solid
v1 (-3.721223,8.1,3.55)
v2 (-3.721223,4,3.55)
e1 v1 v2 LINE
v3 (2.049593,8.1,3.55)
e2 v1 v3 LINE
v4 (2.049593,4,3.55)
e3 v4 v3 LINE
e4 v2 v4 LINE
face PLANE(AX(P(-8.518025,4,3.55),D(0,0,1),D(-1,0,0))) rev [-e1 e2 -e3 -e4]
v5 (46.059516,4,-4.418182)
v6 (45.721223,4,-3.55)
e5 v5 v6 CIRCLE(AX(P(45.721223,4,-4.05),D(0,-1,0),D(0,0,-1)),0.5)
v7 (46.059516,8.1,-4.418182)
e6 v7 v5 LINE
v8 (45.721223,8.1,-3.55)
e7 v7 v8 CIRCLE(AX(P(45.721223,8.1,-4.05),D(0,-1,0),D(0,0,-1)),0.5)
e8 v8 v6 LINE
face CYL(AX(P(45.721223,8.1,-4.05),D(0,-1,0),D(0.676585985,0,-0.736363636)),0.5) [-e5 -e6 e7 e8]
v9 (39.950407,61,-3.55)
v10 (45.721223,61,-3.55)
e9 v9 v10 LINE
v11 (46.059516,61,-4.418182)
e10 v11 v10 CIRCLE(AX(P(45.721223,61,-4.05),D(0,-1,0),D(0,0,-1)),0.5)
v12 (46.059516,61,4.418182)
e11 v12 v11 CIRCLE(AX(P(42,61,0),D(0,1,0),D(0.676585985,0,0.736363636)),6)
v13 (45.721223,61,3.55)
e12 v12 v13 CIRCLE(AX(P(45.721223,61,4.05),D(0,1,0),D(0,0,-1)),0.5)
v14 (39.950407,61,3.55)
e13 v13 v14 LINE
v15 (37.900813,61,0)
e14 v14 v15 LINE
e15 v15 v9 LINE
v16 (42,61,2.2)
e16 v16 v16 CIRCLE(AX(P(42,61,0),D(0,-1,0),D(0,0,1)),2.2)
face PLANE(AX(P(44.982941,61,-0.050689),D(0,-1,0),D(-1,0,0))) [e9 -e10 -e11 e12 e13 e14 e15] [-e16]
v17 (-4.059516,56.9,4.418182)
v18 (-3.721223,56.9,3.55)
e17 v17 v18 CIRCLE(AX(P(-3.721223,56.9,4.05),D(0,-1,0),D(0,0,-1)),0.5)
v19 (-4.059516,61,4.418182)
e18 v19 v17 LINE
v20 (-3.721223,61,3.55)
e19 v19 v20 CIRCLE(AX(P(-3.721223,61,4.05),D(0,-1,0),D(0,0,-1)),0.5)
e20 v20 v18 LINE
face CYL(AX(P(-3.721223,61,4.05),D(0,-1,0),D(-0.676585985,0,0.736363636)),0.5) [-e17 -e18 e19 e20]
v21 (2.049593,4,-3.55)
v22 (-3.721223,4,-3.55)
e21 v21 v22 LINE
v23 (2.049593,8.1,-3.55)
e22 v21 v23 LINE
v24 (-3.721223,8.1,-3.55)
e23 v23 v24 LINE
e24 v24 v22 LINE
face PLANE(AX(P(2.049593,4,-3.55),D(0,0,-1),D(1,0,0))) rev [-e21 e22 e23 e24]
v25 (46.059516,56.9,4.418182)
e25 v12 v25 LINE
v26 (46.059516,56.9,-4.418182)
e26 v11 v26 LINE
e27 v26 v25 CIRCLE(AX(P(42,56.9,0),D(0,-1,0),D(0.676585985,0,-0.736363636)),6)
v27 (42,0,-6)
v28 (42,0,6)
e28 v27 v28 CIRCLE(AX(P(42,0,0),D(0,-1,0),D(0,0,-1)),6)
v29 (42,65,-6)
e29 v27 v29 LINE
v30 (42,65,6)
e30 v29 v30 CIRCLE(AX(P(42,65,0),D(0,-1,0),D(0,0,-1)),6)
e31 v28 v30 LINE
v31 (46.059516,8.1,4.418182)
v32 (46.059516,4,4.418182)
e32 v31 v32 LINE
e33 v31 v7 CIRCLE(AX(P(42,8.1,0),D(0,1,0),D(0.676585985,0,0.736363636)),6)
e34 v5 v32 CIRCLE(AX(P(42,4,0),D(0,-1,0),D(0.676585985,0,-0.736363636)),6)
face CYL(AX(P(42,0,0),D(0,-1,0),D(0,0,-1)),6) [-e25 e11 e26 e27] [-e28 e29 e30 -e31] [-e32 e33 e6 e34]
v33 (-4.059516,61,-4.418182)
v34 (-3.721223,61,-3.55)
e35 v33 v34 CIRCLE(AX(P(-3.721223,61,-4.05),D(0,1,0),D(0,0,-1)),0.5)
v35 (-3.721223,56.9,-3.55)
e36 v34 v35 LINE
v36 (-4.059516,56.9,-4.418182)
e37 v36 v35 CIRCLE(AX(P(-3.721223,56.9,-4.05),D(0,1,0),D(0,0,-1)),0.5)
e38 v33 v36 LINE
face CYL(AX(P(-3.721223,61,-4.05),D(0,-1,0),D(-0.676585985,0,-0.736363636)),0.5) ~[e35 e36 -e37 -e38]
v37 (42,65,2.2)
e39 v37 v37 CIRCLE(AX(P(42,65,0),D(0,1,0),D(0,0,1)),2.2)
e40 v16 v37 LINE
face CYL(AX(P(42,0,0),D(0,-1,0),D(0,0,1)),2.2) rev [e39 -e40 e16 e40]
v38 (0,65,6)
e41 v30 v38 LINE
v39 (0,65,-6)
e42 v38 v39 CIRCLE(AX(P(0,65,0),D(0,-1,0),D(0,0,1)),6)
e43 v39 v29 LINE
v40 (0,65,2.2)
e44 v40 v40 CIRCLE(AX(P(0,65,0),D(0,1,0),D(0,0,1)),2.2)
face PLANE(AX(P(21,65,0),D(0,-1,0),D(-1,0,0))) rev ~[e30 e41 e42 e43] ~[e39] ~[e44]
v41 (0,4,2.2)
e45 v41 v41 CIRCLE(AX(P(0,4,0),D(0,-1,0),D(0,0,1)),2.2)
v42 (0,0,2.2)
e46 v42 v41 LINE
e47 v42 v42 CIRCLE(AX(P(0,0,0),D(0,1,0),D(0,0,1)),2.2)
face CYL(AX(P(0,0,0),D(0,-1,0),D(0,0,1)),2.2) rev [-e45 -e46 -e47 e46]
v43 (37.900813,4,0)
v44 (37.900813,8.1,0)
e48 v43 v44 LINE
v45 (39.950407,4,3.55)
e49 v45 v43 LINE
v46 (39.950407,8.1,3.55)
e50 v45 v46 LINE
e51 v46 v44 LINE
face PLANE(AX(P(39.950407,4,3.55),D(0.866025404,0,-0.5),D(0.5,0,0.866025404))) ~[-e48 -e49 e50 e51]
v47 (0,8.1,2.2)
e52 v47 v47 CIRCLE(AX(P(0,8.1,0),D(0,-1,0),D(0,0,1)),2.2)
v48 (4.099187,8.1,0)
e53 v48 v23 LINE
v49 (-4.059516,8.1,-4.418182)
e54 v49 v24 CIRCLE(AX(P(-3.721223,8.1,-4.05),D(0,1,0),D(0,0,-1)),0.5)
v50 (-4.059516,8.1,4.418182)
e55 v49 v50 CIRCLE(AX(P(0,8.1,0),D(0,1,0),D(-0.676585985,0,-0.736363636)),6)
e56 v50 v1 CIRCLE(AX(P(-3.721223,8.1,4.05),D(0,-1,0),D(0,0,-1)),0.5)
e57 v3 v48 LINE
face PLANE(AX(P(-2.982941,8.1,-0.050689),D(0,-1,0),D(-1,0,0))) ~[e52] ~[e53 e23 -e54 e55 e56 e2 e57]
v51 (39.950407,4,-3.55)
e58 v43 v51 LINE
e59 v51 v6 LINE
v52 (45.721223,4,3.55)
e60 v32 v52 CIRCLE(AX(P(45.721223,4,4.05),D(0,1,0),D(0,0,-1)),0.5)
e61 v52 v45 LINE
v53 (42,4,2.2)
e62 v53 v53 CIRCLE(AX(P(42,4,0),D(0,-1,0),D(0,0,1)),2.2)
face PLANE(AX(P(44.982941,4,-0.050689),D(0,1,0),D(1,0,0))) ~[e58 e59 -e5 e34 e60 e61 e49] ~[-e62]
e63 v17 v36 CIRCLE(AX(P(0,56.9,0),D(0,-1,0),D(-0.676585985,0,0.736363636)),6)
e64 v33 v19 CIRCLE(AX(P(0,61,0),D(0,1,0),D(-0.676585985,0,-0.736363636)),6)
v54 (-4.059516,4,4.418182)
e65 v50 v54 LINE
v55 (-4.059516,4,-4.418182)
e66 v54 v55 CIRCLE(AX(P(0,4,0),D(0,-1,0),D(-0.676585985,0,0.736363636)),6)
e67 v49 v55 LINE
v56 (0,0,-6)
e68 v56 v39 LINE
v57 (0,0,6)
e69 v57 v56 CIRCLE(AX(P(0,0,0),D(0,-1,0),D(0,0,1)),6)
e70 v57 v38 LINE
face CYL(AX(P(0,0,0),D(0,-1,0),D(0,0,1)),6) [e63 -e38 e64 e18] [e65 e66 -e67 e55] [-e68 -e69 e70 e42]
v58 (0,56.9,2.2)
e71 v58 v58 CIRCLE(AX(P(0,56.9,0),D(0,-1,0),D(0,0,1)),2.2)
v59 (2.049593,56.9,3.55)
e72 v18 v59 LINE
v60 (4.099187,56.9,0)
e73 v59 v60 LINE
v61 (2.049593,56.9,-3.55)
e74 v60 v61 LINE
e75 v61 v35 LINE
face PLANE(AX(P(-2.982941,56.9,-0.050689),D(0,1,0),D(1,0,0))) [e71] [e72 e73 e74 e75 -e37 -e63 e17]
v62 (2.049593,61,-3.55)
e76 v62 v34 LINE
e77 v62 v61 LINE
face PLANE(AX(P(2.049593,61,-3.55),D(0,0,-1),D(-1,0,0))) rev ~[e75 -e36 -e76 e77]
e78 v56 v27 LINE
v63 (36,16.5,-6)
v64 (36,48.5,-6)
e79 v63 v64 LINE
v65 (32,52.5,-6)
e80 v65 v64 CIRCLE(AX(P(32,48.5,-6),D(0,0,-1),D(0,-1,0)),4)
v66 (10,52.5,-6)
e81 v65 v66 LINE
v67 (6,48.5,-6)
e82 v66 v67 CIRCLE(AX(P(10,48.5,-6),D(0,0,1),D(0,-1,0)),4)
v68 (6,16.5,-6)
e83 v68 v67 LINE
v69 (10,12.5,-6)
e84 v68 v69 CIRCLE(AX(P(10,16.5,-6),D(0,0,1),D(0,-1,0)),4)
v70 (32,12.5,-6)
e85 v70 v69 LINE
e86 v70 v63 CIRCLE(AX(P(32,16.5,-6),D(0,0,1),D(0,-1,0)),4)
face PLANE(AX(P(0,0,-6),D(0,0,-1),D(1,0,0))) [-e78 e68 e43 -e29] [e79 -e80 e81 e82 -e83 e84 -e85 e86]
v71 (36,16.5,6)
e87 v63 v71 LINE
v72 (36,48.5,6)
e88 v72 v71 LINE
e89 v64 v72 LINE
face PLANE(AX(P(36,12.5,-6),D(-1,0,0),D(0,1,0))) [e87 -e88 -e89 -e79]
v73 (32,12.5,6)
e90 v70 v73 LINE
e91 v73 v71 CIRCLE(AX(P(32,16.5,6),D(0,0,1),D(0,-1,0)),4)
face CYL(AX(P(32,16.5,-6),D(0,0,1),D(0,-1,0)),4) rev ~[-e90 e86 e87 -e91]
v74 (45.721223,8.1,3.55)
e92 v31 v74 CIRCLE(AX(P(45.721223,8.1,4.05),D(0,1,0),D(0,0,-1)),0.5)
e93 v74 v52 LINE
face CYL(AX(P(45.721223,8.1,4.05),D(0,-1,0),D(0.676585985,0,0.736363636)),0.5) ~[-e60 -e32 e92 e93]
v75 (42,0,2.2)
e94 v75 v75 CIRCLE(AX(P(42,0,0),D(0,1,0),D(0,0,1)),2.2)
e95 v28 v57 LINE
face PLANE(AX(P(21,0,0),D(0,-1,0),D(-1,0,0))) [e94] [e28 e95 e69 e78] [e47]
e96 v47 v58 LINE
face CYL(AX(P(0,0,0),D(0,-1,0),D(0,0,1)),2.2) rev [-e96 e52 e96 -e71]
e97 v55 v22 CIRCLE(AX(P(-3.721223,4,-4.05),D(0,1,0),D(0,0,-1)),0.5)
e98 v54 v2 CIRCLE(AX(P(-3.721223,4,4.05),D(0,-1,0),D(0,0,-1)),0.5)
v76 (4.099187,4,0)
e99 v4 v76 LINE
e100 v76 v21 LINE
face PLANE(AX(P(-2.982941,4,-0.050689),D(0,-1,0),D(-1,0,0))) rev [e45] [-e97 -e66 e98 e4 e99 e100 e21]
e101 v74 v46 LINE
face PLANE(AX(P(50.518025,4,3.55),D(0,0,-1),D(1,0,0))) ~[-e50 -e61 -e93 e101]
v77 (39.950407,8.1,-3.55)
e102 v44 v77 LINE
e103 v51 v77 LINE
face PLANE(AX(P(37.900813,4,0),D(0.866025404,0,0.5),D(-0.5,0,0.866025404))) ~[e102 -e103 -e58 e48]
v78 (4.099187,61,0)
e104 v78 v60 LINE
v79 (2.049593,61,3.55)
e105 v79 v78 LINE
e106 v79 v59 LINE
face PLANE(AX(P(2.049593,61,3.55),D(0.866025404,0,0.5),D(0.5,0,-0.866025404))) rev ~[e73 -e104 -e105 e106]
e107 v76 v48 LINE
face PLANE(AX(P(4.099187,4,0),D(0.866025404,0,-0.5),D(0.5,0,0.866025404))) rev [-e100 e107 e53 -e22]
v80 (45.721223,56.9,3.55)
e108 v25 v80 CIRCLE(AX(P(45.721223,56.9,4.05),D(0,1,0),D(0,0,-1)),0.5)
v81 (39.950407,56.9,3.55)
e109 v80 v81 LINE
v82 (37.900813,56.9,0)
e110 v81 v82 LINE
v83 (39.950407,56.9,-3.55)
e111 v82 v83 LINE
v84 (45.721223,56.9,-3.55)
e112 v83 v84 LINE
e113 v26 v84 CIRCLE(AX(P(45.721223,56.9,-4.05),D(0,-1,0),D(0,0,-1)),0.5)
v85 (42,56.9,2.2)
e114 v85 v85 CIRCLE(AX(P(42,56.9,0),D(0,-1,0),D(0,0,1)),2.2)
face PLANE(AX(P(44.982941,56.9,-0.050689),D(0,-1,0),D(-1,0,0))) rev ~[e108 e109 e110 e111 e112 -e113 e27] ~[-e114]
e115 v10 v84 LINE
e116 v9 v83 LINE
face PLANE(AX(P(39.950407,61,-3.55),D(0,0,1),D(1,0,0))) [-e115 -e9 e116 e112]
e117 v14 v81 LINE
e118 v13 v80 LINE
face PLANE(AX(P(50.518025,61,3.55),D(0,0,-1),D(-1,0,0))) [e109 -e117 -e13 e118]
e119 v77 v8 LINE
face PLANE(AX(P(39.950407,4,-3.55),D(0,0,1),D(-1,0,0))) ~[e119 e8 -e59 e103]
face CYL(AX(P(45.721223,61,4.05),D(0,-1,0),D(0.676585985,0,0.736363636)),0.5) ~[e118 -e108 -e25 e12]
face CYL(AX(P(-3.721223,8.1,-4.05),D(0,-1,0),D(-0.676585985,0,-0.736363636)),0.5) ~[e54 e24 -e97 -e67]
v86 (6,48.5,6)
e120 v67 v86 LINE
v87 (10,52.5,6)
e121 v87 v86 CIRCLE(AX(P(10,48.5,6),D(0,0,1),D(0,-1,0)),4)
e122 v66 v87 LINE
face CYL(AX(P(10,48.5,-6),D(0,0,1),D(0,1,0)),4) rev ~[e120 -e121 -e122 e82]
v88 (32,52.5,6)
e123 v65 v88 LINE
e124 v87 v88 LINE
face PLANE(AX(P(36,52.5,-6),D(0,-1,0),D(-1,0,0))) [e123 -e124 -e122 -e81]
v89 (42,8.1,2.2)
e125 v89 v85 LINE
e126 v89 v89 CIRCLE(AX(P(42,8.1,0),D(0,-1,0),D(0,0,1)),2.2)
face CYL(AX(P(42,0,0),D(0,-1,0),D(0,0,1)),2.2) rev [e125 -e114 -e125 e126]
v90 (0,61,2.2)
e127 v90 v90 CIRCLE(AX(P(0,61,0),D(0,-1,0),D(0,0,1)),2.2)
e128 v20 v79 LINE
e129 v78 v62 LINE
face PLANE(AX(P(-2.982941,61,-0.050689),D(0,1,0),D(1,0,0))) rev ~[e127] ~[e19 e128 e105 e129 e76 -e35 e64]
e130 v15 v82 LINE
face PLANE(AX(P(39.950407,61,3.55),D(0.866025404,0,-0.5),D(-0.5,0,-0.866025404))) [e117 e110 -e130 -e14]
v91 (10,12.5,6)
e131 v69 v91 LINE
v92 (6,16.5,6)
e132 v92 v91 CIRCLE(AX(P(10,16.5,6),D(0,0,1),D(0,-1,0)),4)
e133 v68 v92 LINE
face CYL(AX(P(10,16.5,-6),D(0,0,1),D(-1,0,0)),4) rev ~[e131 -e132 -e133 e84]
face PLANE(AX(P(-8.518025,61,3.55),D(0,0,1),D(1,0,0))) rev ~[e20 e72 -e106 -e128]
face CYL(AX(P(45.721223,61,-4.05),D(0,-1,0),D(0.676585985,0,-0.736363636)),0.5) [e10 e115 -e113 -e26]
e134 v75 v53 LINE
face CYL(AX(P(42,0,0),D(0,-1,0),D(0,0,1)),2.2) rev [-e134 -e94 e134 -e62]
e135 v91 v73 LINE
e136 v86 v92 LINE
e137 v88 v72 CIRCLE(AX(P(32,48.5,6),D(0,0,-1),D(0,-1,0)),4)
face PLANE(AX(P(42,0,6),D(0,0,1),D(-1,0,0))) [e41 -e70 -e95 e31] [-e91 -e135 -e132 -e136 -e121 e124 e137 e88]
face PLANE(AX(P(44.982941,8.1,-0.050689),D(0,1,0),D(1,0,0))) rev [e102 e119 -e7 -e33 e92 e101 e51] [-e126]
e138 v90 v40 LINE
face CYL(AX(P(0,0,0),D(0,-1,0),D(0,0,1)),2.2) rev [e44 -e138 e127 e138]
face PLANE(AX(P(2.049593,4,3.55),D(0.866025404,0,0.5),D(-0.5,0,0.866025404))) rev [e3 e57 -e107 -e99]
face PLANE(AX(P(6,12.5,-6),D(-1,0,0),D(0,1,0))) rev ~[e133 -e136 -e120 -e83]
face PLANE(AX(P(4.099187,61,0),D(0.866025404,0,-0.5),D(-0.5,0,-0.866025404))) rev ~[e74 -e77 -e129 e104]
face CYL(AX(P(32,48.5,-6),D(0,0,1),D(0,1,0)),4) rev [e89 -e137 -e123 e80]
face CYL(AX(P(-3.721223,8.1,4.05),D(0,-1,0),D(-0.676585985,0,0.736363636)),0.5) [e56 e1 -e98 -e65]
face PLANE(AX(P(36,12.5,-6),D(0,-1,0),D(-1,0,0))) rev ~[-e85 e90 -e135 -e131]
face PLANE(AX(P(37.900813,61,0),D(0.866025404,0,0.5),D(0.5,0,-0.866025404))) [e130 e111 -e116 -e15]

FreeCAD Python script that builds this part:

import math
import FreeCAD as App
import Part
import Sketcher
from FreeCAD import Vector
Q = App.Units.Quantity


def edges_at(feature, points):
    """Names of the edges that pass closest to the given points."""
    edges = feature.Shape.Edges
    near = lambda p: min(range(len(edges)), key=lambda i: edges[i].distToShape(Part.Vertex(*p))[0])
    return sorted({f"Edge{near(p) + 1}" for p in points})


def add_polygon(sketch, points):
    """Adds a closed chain of lines whose ends are joined by coincident constraints."""
    first, n = sketch.GeometryCount, len(points)
    for a, b in zip(points, points[1:] + points[:1]):
        sketch.addGeometry(Part.LineSegment(App.Vector(*a, 0), App.Vector(*b, 0)), False)
    for i in range(n):
        sketch.addConstraint(Sketcher.Constraint("Coincident", first + i, 2, first + (i + 1) % n, 1))

doc = App.newDocument("Part")
body = doc.addObject("PartDesign::Body", "Body")

sketch1 = doc.addObject("Sketcher::SketchObject", "Sketch")
body.addObject(sketch1)
sketch1.AttachmentSupport = (doc.XZ_Plane, [""])
sketch1.MapMode = "FlatFace"
sketch1.addGeometry(Part.LineSegment(Vector(42, -6, 0), Vector(0, -6, 0)), False)
sketch1.addGeometry(Part.ArcOfCircle(Part.Circle(Vector(0, 0, 0), Vector(0, 0, 1), 6), math.radians(90), math.radians(270)), False)
sketch1.addGeometry(Part.LineSegment(Vector(0, 6, 0), Vector(42, 6, 0)), False)
sketch1.addGeometry(Part.ArcOfCircle(Part.Circle(Vector(42, 0, 0), Vector(0, 0, 1), 6), math.radians(-90), math.radians(90)), False)
sketch1.addGeometry(Part.Circle(Vector(42, 0, 0), Vector(0, 0, 1), 2.2), False)
sketch1.addGeometry(Part.Circle(Vector(0, 0, 0), Vector(0, 0, 1), 2.2), False)
sketch1.addConstraint(Sketcher.Constraint("Tangent", 0, 2, 1, 2))
sketch1.addConstraint(Sketcher.Constraint("Tangent", 1, 1, 2, 1))
sketch1.addConstraint(Sketcher.Constraint("Tangent", 2, 2, 3, 2))
sketch1.addConstraint(Sketcher.Constraint("Tangent", 3, 1, 0, 1))
sketch1.addConstraint(Sketcher.Constraint("Horizontal", 0))
sketch1.addConstraint(Sketcher.Constraint("Horizontal", 2))
sketch1.addConstraint(Sketcher.Constraint("Coincident", 1, 3, -1, 1))
sketch1.addConstraint(Sketcher.Constraint("Coincident", 5, 3, -1, 1))
sketch1.addConstraint(Sketcher.Constraint("Coincident", 4, 3, 3, 3))
sketch1.addConstraint(Sketcher.Constraint("Equal", 4, 5))
sketch1.addConstraint(Sketcher.Constraint("Radius", 1, 6.0))
sketch1.addConstraint(Sketcher.Constraint("Diameter", 4, 4.4))
sketch1.addConstraint(Sketcher.Constraint("DistanceX", 0, 2, 0, 1, 42.0))
pad1 = doc.addObject("PartDesign::Pad", "Pad")
body.addObject(pad1)
pad1.Profile = sketch1
pad1.Length = 65
pad1.Reversed = True

sketch2 = doc.addObject("Sketcher::SketchObject", "Sketch001")
body.addObject(sketch2)
sketch2.AttachmentSupport = (doc.XZ_Plane, [""])
sketch2.MapMode = "FlatFace"
sketch2.AttachmentOffset = App.Placement(Vector(0, 0, -61), App.Rotation())
add_polygon(sketch2, [(4.099187, 0), (2.049593, -3.55), (-9.046066, -3.55), (-8.518025, 3.55), (2.049593, 3.55)])
add_polygon(sketch2, [(51.046066, -3.55), (39.950407, -3.55), (37.900813, 0), (39.950407, 3.55), (50.518025, 3.55)])
sketch2.addConstraint(Sketcher.Constraint("Horizontal", 1))
sketch2.addConstraint(Sketcher.Constraint("Horizontal", 3))
sketch2.addConstraint(Sketcher.Constraint("Horizontal", 5))
sketch2.addConstraint(Sketcher.Constraint("Horizontal", 8))
sketch2.addConstraint(Sketcher.Constraint("Symmetric", 0, 2, 3, 2, -1))
sketch2.addConstraint(Sketcher.Constraint("Symmetric", 5, 2, 7, 2, -1))
sketch2.addConstraint(Sketcher.Constraint("PointOnObject", 4, 2, -1))
sketch2.addConstraint(Sketcher.Constraint("PointOnObject", 6, 2, -1))
sketch2.addConstraint(Sketcher.Constraint("Parallel", 4, 6))
sketch2.addConstraint(Sketcher.Constraint("Horizontal", 1, 2, 5, 2))
sketch2.addConstraint(Sketcher.Constraint("Equal", 1, 5))
sketch2.addConstraint(Sketcher.Constraint("Equal", 3, 8))
sketch2.addConstraint(Sketcher.Constraint("Angle", 0, Q("-120 deg")))
sketch2.addConstraint(Sketcher.Constraint("DistanceY", 1, 2, 2, 2, 7.1))
sketch2.addConstraint(Sketcher.Constraint("DistanceX", 1, 2, 1, 1, 11.095659))
sketch2.addConstraint(Sketcher.Constraint("DistanceX", 3, 1, 3, 2, 10.567618))
sketch2.addConstraint(Sketcher.Constraint("DistanceX", 4, 2, 5, 2, 35.85122))
sketch2.addConstraint(Sketcher.Constraint("DistanceX", -1, 1, 0, 2, 2.049593))
pocket1 = doc.addObject("PartDesign::Pocket", "Pocket")
body.addObject(pocket1)
pocket1.Profile = sketch2
pocket1.Length = 4.1
pocket1.Reversed = True
doc.recompute()

fillet = doc.addObject("PartDesign::Fillet", "Fillet")
body.addObject(fillet)
fillet.Base = (pocket1, edges_at(pocket1, [
    (46.837, 58.95, 3.55),
    (46.837, 58.95, -3.55),
    (-4.837, 58.95, -3.55),
    (-4.837, 58.95, 3.55),
]))
fillet.Radius = 0.5
doc.recompute()

datumplane = doc.addObject("PartDesign::Plane", "DatumPlane")
body.addObject(datumplane)
datumplane.AttachmentSupport = (doc.XZ_Plane, [""])
datumplane.MapMode = "FlatFace"
datumplane.AttachmentOffset = App.Placement(Vector(0, 0, -32.5), App.Rotation())
mirrored = doc.addObject("PartDesign::Mirrored", "Mirrored")
body.addObject(mirrored)
mirrored.Originals = [pocket1]
mirrored.MirrorPlane = (datumplane, [""])
body.Tip = mirrored
doc.recompute()

fillet2 = doc.addObject("PartDesign::Fillet", "Fillet001")
body.addObject(fillet2)
fillet2.Base = (mirrored, edges_at(mirrored, [
    (46.837, 6.05, 3.55),
    (46.837, 6.05, -3.55),
    (-4.837, 6.05, -3.55),
    (-4.837, 6.05, 3.55),
]))
fillet2.Radius = 0.5

sketch3 = doc.addObject("Sketcher::SketchObject", "Sketch002")
body.addObject(sketch3)
sketch3.AttachmentSupport = (doc.XY_Plane, [""])
sketch3.MapMode = "FlatFace"
sketch3.AttachmentOffset = App.Placement(Vector(0, 0, -6), App.Rotation())
add_polygon(sketch3, [(36, 52.5), (36, 12.5), (6, 12.5), (6, 52.5)])
sketch3.addConstraint(Sketcher.Constraint("Vertical", 0))
sketch3.addConstraint(Sketcher.Constraint("Horizontal", 1))
sketch3.addConstraint(Sketcher.Constraint("Vertical", 2))
sketch3.addConstraint(Sketcher.Constraint("Horizontal", 3))
sketch3.addConstraint(Sketcher.Constraint("DistanceX", 1, 2, 1, 1, 30.0))
sketch3.addConstraint(Sketcher.Constraint("DistanceY", 0, 2, 0, 1, 40.0))
sketch3.addConstraint(Sketcher.Constraint("DistanceX", -1, 1, 0, 2, 36.0))
sketch3.addConstraint(Sketcher.Constraint("DistanceY", -1, 1, 0, 2, 12.5))
pocket2 = doc.addObject("PartDesign::Pocket", "Pocket001")
body.addObject(pocket2)
pocket2.Profile = sketch3
pocket2.Type = "ThroughAll"
pocket2.Reversed = True
doc.recompute()

fillet3 = doc.addObject("PartDesign::Fillet", "Fillet002")
body.addObject(fillet3)
fillet3.Base = (pocket2, edges_at(pocket2, [
    (6, 52.5, 0),
    (6, 12.5, 0),
    (36, 12.5, 0),
    (36, 52.5, 0),
]))
fillet3.Radius = 4

doc.recompute()
